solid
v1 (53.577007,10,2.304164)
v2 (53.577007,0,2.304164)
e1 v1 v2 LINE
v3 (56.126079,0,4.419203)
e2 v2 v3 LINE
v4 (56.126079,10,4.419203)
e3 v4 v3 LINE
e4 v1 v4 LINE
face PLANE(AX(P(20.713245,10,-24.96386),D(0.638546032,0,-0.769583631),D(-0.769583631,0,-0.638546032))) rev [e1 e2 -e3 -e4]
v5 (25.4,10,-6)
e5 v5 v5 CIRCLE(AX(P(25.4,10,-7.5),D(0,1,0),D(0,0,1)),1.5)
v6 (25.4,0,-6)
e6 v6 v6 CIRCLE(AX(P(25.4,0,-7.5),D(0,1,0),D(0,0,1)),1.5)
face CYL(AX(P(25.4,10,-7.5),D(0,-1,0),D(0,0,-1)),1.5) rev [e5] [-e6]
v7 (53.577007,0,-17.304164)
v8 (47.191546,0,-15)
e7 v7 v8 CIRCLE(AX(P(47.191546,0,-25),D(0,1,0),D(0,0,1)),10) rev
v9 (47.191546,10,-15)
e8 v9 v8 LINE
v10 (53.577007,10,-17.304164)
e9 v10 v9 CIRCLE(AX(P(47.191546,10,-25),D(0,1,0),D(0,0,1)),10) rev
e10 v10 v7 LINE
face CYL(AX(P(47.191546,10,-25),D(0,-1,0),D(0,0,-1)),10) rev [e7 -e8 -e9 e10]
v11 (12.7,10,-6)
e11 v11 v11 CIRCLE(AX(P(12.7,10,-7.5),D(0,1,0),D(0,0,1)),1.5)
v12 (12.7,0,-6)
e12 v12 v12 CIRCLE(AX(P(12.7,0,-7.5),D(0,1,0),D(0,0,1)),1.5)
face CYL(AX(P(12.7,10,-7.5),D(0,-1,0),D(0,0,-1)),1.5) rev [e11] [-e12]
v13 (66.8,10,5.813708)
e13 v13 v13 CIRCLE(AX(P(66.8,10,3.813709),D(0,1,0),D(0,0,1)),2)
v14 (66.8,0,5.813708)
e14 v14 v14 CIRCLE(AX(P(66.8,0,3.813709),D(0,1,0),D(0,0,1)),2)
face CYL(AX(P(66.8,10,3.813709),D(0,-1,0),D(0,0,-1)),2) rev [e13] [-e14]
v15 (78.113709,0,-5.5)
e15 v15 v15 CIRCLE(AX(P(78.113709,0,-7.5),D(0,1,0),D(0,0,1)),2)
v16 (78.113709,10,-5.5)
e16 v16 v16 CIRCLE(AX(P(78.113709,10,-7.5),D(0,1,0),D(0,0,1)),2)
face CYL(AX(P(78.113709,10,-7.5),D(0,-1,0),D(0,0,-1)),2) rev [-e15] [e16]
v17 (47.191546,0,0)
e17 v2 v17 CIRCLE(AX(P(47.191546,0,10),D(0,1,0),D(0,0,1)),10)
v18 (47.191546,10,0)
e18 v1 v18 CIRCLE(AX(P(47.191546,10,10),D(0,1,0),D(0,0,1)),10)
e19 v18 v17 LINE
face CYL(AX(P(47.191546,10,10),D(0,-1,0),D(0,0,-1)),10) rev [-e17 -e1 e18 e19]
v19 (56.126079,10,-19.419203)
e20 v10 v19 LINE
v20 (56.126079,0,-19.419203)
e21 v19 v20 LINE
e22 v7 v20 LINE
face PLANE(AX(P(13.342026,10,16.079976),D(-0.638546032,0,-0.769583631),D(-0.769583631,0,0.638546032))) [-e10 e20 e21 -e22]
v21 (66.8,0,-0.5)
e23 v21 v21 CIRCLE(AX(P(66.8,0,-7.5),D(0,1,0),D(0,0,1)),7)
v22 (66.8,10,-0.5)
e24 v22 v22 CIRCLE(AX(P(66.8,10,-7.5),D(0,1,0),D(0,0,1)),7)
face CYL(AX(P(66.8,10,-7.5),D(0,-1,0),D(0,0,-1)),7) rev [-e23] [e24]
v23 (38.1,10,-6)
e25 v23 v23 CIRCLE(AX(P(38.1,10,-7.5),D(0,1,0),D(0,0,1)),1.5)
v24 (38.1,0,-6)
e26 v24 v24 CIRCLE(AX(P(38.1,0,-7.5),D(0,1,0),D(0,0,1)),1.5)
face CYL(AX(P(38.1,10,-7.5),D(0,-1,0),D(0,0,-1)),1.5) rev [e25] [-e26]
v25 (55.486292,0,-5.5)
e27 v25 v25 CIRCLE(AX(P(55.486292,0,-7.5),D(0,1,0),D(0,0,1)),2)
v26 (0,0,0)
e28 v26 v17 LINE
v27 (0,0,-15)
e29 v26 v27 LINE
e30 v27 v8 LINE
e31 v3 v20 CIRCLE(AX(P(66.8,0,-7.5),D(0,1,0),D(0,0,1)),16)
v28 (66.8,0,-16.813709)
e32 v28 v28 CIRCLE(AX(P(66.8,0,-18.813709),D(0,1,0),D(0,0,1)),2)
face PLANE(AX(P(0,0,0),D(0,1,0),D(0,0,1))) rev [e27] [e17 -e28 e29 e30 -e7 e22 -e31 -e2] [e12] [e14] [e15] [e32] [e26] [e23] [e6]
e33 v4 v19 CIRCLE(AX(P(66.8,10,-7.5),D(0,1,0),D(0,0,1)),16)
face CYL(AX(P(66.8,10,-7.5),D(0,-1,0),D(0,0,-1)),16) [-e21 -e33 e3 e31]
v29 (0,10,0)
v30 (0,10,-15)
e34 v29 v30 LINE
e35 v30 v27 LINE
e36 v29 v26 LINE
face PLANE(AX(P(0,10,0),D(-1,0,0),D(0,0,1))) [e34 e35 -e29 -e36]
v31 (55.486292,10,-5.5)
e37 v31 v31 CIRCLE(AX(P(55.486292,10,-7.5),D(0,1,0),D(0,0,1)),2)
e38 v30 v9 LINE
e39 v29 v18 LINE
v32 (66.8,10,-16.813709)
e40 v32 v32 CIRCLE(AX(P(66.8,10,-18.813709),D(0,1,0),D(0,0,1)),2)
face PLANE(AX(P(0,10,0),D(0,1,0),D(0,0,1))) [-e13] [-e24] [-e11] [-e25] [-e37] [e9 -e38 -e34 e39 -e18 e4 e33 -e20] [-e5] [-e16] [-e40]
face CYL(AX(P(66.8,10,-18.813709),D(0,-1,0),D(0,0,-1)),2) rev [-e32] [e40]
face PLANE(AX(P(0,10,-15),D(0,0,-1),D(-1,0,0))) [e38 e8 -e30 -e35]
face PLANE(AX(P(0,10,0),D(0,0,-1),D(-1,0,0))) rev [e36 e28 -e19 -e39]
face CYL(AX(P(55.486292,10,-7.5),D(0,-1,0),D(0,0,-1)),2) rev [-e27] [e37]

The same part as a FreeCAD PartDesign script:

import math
import FreeCAD as App
import Part
import Sketcher
from FreeCAD import Vector

doc = App.newDocument("Part")
params = doc.addObject("Spreadsheet::Sheet", "Params")
for row, (alias, value) in enumerate([
    ("sketch1_diameter", "4 mm"),
    ("sketch1_diameter2", "3 mm"),
    ("sketch1_diameter3", "14 mm"),
    ("sketch1_radius", "10 mm"),
    ("sketch1_radius2", "16 mm"),
    ("pad1_length", "10 mm"),
], start=1):
    params.set(f"A{row}", alias)
    params.set(f"B{row}", "=" + value)
    params.setAlias(f"B{row}", alias)

body = doc.addObject("PartDesign::Body", "Body")

# Sketch on XZ plane
sketch1 = doc.addObject("Sketcher::SketchObject", "Sketch")
body.addObject(sketch1)
sketch1.AttachmentSupport = (doc.XZ_Plane, [""])
sketch1.MapMode = "FlatFace"
sketch1.addGeometry([
    Part.ArcOfCircle(Part.Circle(Vector(47.2, -25, 0), Vector(0, 0, 1), 10), math.radians(50), math.radians(90)),  # 0
    Part.LineSegment(Vector(47.2, -15, 0), Vector(0, -15, 0)),  # 1
    Part.LineSegment(Vector(0, -15, 0), Vector(0, 0, 0)),  # 2
    Part.LineSegment(Vector(0, 0, 0), Vector(47.2, 0, 0)),  # 3
    Part.ArcOfCircle(Part.Circle(Vector(47.2, 10, 0), Vector(0, 0, 1), 10), math.radians(-90), math.radians(-50)),  # 4
    Part.LineSegment(Vector(53.6, 2.3, 0), Vector(56.1, 4.4, 0)),  # 5
    Part.ArcOfCircle(Part.Circle(Vector(66.8, -7.5, 0), Vector(0, 0, 1), 16), math.radians(-132), math.radians(132)),  # 6
    Part.LineSegment(Vector(56.1, -19.4, 0), Vector(53.6, -17.3, 0)),  # 7
    Part.Circle(Vector(66.8, 3.8, 0), Vector(0, 0, 1), 2),  # 8
    Part.Circle(Vector(12.7, -7.5, 0), Vector(0, 0, 1), 1.5),  # 9
    Part.Circle(Vector(25.4, -7.5, 0), Vector(0, 0, 1), 1.5),  # 10
    Part.Circle(Vector(38.1, -7.5, 0), Vector(0, 0, 1), 1.5),  # 11
    Part.Circle(Vector(55.5, -7.5, 0), Vector(0, 0, 1), 2),  # 12
    Part.Circle(Vector(66.8, -7.5, 0), Vector(0, 0, 1), 7),  # 13
    Part.Circle(Vector(78.1, -7.5, 0), Vector(0, 0, 1), 2),  # 14
    Part.Circle(Vector(66.8, -18.8, 0), Vector(0, 0, 1), 2),  # 15
], False)
sketch1.addConstraint([
    Sketcher.Constraint("Tangent", 0, 2, 1, 1),
    Sketcher.Constraint("Coincident", 1, 2, 2, 1),
    Sketcher.Constraint("Coincident", 2, 2, 3, 1),
    Sketcher.Constraint("Tangent", 3, 2, 4, 1),
    Sketcher.Constraint("Tangent", 4, 2, 5, 1),
    Sketcher.Constraint("Coincident", 5, 2, 6, 2),
    Sketcher.Constraint("Coincident", 6, 1, 7, 1),
    Sketcher.Constraint("Tangent", 7, 2, 0, 1),
    Sketcher.Constraint("Horizontal", 1),
    Sketcher.Constraint("Vertical", 2),
    Sketcher.Constraint("Horizontal", 3),
    Sketcher.Constraint("Coincident", 2, 2, -1, 1),
    Sketcher.Constraint("Coincident", 13, 3, 6, 3),
    Sketcher.Constraint("Equal", 0, 4),
    Sketcher.Constraint("Equal", 9, 10),
    Sketcher.Constraint("Equal", 10, 11),
    Sketcher.Constraint("Equal", 8, 12),
    Sketcher.Constraint("Equal", 12, 14),
    Sketcher.Constraint("Equal", 14, 15),
    Sketcher.Constraint("Horizontal", 6, 3, 9, 3),
    Sketcher.Constraint("Horizontal", 9, 3, 10, 3),
    Sketcher.Constraint("Horizontal", 10, 3, 11, 3),
    Sketcher.Constraint("Horizontal", 11, 3, 12, 3),
    Sketcher.Constraint("Horizontal", 13, 3, 14, 3),
    Sketcher.Constraint("Vertical", 0, 3, 4, 3),
    Sketcher.Constraint("Vertical", 6, 3, 8, 3),
    Sketcher.Constraint("Vertical", 13, 3, 15, 3),
    Sketcher.Constraint("Vertical", 5, 2, 6, 1),
    Sketcher.Constraint("Vertical", 4, 2, 7, 2),
    Sketcher.Constraint("Diameter", 8, 4.0),
    Sketcher.Constraint("Diameter", 9, 3.0),
    Sketcher.Constraint("Diameter", 13, 14.0),
    Sketcher.Constraint("Radius", 0, 10.0),
    Sketcher.Constraint("Radius", 6, 16.0),
    Sketcher.Constraint("DistanceY", 2, 1, 2, 2, 15.0),
    Sketcher.Constraint("DistanceX", -1, 1, 6, 3, 66.8),
    Sketcher.Constraint("DistanceX", -1, 1, 9, 3, 12.7),
    Sketcher.Constraint("DistanceX", -1, 1, 10, 3, 25.4),
    Sketcher.Constraint("DistanceX", -1, 1, 11, 3, 38.1),
    Sketcher.Constraint("DistanceX", 1, 2, 1, 1, 47.191546),
    Sketcher.Constraint("DistanceY", -1, 1, 8, 3, 3.813709),
    Sketcher.Constraint("DistanceX", -1, 1, 12, 3, 55.486292),
    Sketcher.Constraint("DistanceX", -1, 1, 14, 3, 78.113709),
    Sketcher.Constraint("DistanceY", 15, 3, -1, 1, 18.813709),
    Sketcher.Constraint("DistanceX", -1, 1, 5, 2, 56.126079),
])
sketch1.setExpression("Constraints[29]", "Params.sketch1_diameter")
sketch1.setExpression("Constraints[30]", "Params.sketch1_diameter2")
sketch1.setExpression("Constraints[31]", "Params.sketch1_diameter3")
sketch1.setExpression("Constraints[32]", "Params.sketch1_radius")
sketch1.setExpression("Constraints[33]", "Params.sketch1_radius2")
pad1 = doc.addObject("PartDesign::Pad", "Pad")
body.addObject(pad1)
pad1.Profile = sketch1
pad1.setExpression("Length", "Params.pad1_length")
pad1.Reversed = True

doc.recompute()
